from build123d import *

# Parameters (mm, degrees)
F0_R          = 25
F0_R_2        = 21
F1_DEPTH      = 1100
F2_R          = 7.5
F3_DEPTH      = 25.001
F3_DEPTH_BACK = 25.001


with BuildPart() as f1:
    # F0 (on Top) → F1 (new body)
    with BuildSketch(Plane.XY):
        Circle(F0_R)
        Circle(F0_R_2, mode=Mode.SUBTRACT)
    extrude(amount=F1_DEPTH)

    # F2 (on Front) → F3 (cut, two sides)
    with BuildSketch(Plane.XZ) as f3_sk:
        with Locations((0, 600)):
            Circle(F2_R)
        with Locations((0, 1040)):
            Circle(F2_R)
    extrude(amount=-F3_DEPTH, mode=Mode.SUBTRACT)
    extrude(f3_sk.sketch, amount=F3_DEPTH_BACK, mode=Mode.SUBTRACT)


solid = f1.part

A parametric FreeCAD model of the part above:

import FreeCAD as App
import Part
import Sketcher
from FreeCAD import Vector
Q = App.Units.Quantity

doc = App.newDocument("Part")
body = doc.addObject("PartDesign::Body", "Body")

sketch1 = body.newObject("Sketcher::SketchObject", "Sketch")
sketch1.AttachmentSupport = (doc.getObject("XY_Plane"), [""])
sketch1.MapMode = "FlatFace"
sketch1.addGeometry(Part.Circle(Vector(0, 0, 0), Vector(0, 0, 1), 25), False)
sketch1.addGeometry(Part.Circle(Vector(0, 0, 0), Vector(0, 0, 1), 21), False)
sketch1.addConstraint(Sketcher.Constraint("Coincident", 0, 3, -1, 1))
sketch1.addConstraint(Sketcher.Constraint("Coincident", 1, 3, -1, 1))
sketch1.addConstraint(Sketcher.Constraint("Diameter", 0, Q("50 mm")))
sketch1.addConstraint(Sketcher.Constraint("Diameter", 1, Q("42 mm")))
pad1 = body.newObject("PartDesign::Pad", "Pad")
pad1.Profile = sketch1
pad1.Length = 1100

sketch2 = body.newObject("Sketcher::SketchObject", "Sketch001")
sketch2.AttachmentSupport = (doc.getObject("XZ_Plane"), [""])
sketch2.MapMode = "FlatFace"
sketch2.addGeometry(Part.Circle(Vector(0, 600, 0), Vector(0, 0, 1), 8), False)
sketch2.addGeometry(Part.Circle(Vector(0, 1040, 0), Vector(0, 0, 1), 8), False)
sketch2.addConstraint(Sketcher.Constraint("Equal", 0, 1))
sketch2.addConstraint(Sketcher.Constraint("PointOnObject", 0, 3, -2))
sketch2.addConstraint(Sketcher.Constraint("PointOnObject", 1, 3, -2))
sketch2.addConstraint(Sketcher.Constraint("Diameter", 0, Q("15 mm")))
sketch2.addConstraint(Sketcher.Constraint("DistanceY", -1, 1, 0, 3, Q("600 mm")))
sketch2.addConstraint(Sketcher.Constraint("DistanceY", -1, 1, 1, 3, Q("1040 mm")))
pocket1 = body.newObject("PartDesign::Pocket", "Pocket")
pocket1.Profile = sketch2
pocket1.Type = "ThroughAll"
pocket1.Midplane = True

doc.recompute()
